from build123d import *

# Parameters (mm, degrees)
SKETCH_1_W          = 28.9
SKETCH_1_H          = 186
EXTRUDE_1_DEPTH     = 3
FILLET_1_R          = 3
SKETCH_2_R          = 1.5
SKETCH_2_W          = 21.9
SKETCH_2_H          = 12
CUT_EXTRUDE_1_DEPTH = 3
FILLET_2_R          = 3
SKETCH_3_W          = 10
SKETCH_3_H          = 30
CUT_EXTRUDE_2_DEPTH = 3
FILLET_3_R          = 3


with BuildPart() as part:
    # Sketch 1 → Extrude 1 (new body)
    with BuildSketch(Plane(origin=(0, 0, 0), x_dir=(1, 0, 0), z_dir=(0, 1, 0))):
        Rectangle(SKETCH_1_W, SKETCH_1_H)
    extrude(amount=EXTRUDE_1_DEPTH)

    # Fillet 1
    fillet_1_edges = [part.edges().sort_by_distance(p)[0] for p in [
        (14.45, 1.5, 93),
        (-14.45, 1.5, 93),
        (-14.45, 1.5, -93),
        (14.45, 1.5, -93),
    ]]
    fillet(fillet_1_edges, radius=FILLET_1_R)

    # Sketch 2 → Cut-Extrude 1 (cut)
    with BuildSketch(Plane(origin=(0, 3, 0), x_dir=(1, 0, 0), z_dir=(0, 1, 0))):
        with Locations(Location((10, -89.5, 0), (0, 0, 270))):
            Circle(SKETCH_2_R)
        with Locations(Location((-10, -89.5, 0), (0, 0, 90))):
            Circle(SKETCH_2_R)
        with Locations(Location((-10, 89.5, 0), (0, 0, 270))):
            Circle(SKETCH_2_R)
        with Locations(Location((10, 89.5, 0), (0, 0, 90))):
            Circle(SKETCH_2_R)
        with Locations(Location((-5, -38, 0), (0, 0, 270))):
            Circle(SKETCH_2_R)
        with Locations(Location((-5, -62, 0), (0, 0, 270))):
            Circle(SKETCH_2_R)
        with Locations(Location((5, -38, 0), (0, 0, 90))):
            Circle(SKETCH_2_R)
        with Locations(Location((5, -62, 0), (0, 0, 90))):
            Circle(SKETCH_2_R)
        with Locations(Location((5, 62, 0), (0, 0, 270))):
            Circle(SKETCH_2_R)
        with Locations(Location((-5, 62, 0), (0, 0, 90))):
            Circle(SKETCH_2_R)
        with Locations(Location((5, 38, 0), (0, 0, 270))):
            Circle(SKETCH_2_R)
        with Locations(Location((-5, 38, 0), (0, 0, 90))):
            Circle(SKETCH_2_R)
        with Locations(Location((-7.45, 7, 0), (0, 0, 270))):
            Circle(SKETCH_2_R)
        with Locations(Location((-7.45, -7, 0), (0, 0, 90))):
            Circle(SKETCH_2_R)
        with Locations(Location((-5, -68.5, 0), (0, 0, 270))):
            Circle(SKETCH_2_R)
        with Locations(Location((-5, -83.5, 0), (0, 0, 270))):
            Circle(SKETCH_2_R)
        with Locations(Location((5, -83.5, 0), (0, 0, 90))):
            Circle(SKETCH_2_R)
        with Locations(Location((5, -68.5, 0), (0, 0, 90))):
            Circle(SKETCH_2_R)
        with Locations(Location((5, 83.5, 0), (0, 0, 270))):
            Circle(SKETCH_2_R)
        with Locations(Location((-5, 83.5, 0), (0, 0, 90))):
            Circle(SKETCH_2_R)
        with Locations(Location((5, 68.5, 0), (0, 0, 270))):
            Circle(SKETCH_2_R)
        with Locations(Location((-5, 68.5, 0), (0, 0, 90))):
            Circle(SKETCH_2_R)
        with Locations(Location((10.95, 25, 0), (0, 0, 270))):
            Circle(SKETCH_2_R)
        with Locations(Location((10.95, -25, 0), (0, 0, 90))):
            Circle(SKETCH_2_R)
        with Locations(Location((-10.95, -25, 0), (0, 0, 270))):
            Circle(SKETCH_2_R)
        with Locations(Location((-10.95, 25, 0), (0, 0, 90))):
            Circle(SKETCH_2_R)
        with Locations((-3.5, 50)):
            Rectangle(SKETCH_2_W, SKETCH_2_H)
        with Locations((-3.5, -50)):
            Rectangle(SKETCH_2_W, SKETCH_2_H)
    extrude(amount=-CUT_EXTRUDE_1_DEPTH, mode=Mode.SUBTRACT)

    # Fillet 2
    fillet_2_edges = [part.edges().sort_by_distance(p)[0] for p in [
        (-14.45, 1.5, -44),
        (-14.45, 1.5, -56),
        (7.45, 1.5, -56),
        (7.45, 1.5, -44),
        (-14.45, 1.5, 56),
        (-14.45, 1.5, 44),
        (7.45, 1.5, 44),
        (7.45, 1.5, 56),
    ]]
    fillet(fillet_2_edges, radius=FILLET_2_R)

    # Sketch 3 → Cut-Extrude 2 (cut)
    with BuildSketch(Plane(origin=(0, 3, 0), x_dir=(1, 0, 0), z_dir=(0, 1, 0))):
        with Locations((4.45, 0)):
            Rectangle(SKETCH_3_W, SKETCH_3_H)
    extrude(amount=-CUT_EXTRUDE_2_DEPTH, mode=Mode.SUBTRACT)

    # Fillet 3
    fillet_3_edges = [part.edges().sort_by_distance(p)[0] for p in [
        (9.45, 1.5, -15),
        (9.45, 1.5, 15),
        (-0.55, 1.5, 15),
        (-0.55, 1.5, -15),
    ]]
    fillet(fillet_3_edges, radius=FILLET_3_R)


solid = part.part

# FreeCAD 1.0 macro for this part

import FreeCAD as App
import Part
import Sketcher
from FreeCAD import Vector


def edges_at(feature, points):
    """Names of the edges that pass closest to the given points."""
    edges = feature.Shape.Edges
    near = lambda p: min(range(len(edges)), key=lambda i: edges[i].distToShape(Part.Vertex(*p))[0])
    return sorted({f"Edge{near(p) + 1}" for p in points})

doc = App.newDocument("Part")
body = doc.addObject("PartDesign::Body", "Body")

# Sketch on XZ plane
sketch1 = body.newObject("Sketcher::SketchObject", "Sketch")
sketch1.AttachmentSupport = (doc.getObject("XZ_Plane"), [""])
sketch1.MapMode = "FlatFace"
sketch1.addGeometry([
    Part.LineSegment(Vector(-14, -93, 0), Vector(-14, 93, 0)),
    Part.LineSegment(Vector(-14, 93, 0), Vector(14, 93, 0)),
    Part.LineSegment(Vector(14, 93, 0), Vector(14, -93, 0)),
    Part.LineSegment(Vector(14, -93, 0), Vector(-14, -93, 0)),
], False)
sketch1.addConstraint([
    Sketcher.Constraint("Coincident", 0, 2, 1, 1),
    Sketcher.Constraint("Coincident", 1, 2, 2, 1),
    Sketcher.Constraint("Coincident", 2, 2, 3, 1),
    Sketcher.Constraint("Coincident", 3, 2, 0, 1),
    Sketcher.Constraint("Vertical", 0),
    Sketcher.Constraint("Horizontal", 1),
    Sketcher.Constraint("Vertical", 2),
    Sketcher.Constraint("Horizontal", 3),
    Sketcher.Constraint("Symmetric", 0, 2, 2, 2, -1, 1),
    Sketcher.Constraint("DistanceY", 0, 1, 0, 2, 186.0),
    Sketcher.Constraint("DistanceX", 1, 1, 1, 2, 28.9),
])
pad1 = body.newObject("PartDesign::Pad", "Pad")
pad1.Profile = sketch1
pad1.Length = 3
pad1.Reversed = True
doc.recompute()

fillet = body.newObject("PartDesign::Fillet", "Fillet")
fillet.Base = (pad1, edges_at(pad1, [
    (14.45, 1.5, 93),
    (-14.45, 1.5, 93),
    (-14.45, 1.5, -93),
    (14.45, 1.5, -93),
]))
fillet.Radius = 3

# Sketch on XZ plane
sketch2 = body.newObject("Sketcher::SketchObject", "Sketch001")
sketch2.AttachmentSupport = (doc.getObject("XZ_Plane"), [""])
sketch2.MapMode = "FlatFace"
sketch2.AttachmentOffset = App.Placement(Vector(0, 0, -3), App.Rotation())
sketch2.addGeometry([
    Part.Circle(Vector(10, 89.5, 0), Vector(0, 0, 1), 1.5),  # 0
    Part.Circle(Vector(-10, 89.5, 0), Vector(0, 0, 1), 1.5),  # 1
    Part.Circle(Vector(-10, -89.5, 0), Vector(0, 0, 1), 1.5),  # 2
    Part.Circle(Vector(10, -89.5, 0), Vector(0, 0, 1), 1.5),  # 3
    Part.Circle(Vector(-5, 38, 0), Vector(0, 0, 1), 1.5),  # 4
    Part.Circle(Vector(-5, 62, 0), Vector(0, 0, 1), 1.5),  # 5
    Part.Circle(Vector(5, 38, 0), Vector(0, 0, 1), 1.5),  # 6
    Part.Circle(Vector(5, 62, 0), Vector(0, 0, 1), 1.5),  # 7
    Part.Circle(Vector(5, -62, 0), Vector(0, 0, 1), 1.5),  # 8
    Part.Circle(Vector(-5, -62, 0), Vector(0, 0, 1), 1.5),  # 9
    Part.Circle(Vector(5, -38, 0), Vector(0, 0, 1), 1.5),  # 10
    Part.Circle(Vector(-5, -38, 0), Vector(0, 0, 1), 1.5),  # 11
    Part.Circle(Vector(-7.5, -7, 0), Vector(0, 0, 1), 1.5),  # 12
    Part.Circle(Vector(-7.5, 7, 0), Vector(0, 0, 1), 1.5),  # 13
    Part.Circle(Vector(-5, 68.5, 0), Vector(0, 0, 1), 1.5),  # 14
    Part.Circle(Vector(-5, 83.5, 0), Vector(0, 0, 1), 1.5),  # 15
    Part.Circle(Vector(5, 83.5, 0), Vector(0, 0, 1), 1.5),  # 16
    Part.Circle(Vector(5, 68.5, 0), Vector(0, 0, 1), 1.5),  # 17
    Part.Circle(Vector(5, -83.5, 0), Vector(0, 0, 1), 1.5),  # 18
    Part.Circle(Vector(-5, -83.5, 0), Vector(0, 0, 1), 1.5),  # 19
    Part.Circle(Vector(5, -68.5, 0), Vector(0, 0, 1), 1.5),  # 20
    Part.Circle(Vector(-5, -68.5, 0), Vector(0, 0, 1), 1.5),  # 21
    Part.Circle(Vector(10.9, -25, 0), Vector(0, 0, 1), 1.5),  # 22
    Part.Circle(Vector(10.9, 25, 0), Vector(0, 0, 1), 1.5),  # 23
    Part.Circle(Vector(-10.9, 25, 0), Vector(0, 0, 1), 1.5),  # 24
    Part.Circle(Vector(-10.9, -25, 0), Vector(0, 0, 1), 1.5),  # 25
    Part.LineSegment(Vector(-14.4, -56, 0), Vector(-14.4, -44, 0)),  # 26
    Part.LineSegment(Vector(-14.4, -44, 0), Vector(7.5, -44, 0)),  # 27
    Part.LineSegment(Vector(7.5, -44, 0), Vector(7.5, -56, 0)),  # 28
    Part.LineSegment(Vector(7.5, -56, 0), Vector(-14.4, -56, 0)),  # 29
    Part.LineSegment(Vector(-14.4, 44, 0), Vector(-14.4, 56, 0)),  # 30
    Part.LineSegment(Vector(-14.4, 56, 0), Vector(7.5, 56, 0)),  # 31
    Part.LineSegment(Vector(7.5, 56, 0), Vector(7.5, 44, 0)),  # 32
    Part.LineSegment(Vector(7.5, 44, 0), Vector(-14.4, 44, 0)),  # 33
], False)
sketch2.addConstraint([
    Sketcher.Constraint("Coincident", 26, 2, 27, 1),
    Sketcher.Constraint("Coincident", 27, 2, 28, 1),
    Sketcher.Constraint("Coincident", 28, 2, 29, 1),
    Sketcher.Constraint("Coincident", 29, 2, 26, 1),
    Sketcher.Constraint("Coincident", 30, 2, 31, 1),
    Sketcher.Constraint("Coincident", 31, 2, 32, 1),
    Sketcher.Constraint("Coincident", 32, 2, 33, 1),
    Sketcher.Constraint("Coincident", 33, 2, 30, 1),
    Sketcher.Constraint("Vertical", 26),
    Sketcher.Constraint("Horizontal", 27),
    Sketcher.Constraint("Vertical", 28),
    Sketcher.Constraint("Horizontal", 29),
    Sketcher.Constraint("Vertical", 30),
    Sketcher.Constraint("Horizontal", 31),
    Sketcher.Constraint("Vertical", 32),
    Sketcher.Constraint("Horizontal", 33),
    Sketcher.Constraint("Equal", 0, 1),
    Sketcher.Constraint("Equal", 1, 2),
    Sketcher.Constraint("Equal", 2, 3),
    Sketcher.Constraint("Equal", 3, 4),
    Sketcher.Constraint("Equal", 4, 5),
    Sketcher.Constraint("Equal", 5, 6),
    Sketcher.Constraint("Equal", 6, 7),
    Sketcher.Constraint("Equal", 7, 8),
    Sketcher.Constraint("Equal", 8, 9),
    Sketcher.Constraint("Equal", 9, 10),
    Sketcher.Constraint("Equal", 10, 11),
    Sketcher.Constraint("Equal", 11, 12),
    Sketcher.Constraint("Equal", 12, 13),
    Sketcher.Constraint("Equal", 13, 14),
    Sketcher.Constraint("Equal", 14, 15),
    Sketcher.Constraint("Equal", 15, 16),
    Sketcher.Constraint("Equal", 16, 17),
    Sketcher.Constraint("Equal", 17, 18),
    Sketcher.Constraint("Equal", 18, 19),
    Sketcher.Constraint("Equal", 19, 20),
    Sketcher.Constraint("Equal", 20, 21),
    Sketcher.Constraint("Equal", 21, 22),
    Sketcher.Constraint("Equal", 22, 23),
    Sketcher.Constraint("Equal", 23, 24),
    Sketcher.Constraint("Equal", 24, 25),
    Sketcher.Constraint("Symmetric", 0, 3, 2, 3, -1, 1),
    Sketcher.Constraint("Symmetric", 1, 3, 3, 3, -1, 1),
    Sketcher.Constraint("Symmetric", 5, 3, 8, 3, -1, 1),
    Sketcher.Constraint("Symmetric", 7, 3, 9, 3, -1, 1),
    Sketcher.Constraint("Symmetric", 4, 3, 10, 3, -1, 1),
    Sketcher.Constraint("Symmetric", 6, 3, 11, 3, -1, 1),
    Sketcher.Constraint("Symmetric", 15, 3, 18, 3, -1, 1),
    Sketcher.Constraint("Symmetric", 16, 3, 19, 3, -1, 1),
    Sketcher.Constraint("Symmetric", 14, 3, 20, 3, -1, 1),
    Sketcher.Constraint("Symmetric", 17, 3, 21, 3, -1, 1),
    Sketcher.Constraint("Symmetric", 22, 3, 24, 3, -1, 1),
    Sketcher.Constraint("Symmetric", 23, 3, 25, 3, -1, 1),
    Sketcher.Constraint("Symmetric", 0, 3, 1, 3, -2),
    Sketcher.Constraint("Symmetric", 4, 3, 6, 3, -2),
    Sketcher.Constraint("Symmetric", 5, 3, 7, 3, -2),
    Sketcher.Constraint("Symmetric", 15, 3, 16, 3, -2),
    Sketcher.Constraint("Symmetric", 14, 3, 17, 3, -2),
    Sketcher.Constraint("Symmetric", 23, 3, 24, 3, -2),
    Sketcher.Constraint("Symmetric", 12, 3, 13, 3, -1),
    Sketcher.Constraint("Symmetric", 29, 2, 30, 2, -1),
    Sketcher.Constraint("Symmetric", 27, 2, 32, 2, -1),
    Sketcher.Constraint("Vertical", 4, 3, 5, 3),
    Sketcher.Constraint("Vertical", 11, 3, 14, 3),
    Sketcher.Constraint("Vertical", 14, 3, 15, 3),
    Sketcher.Constraint("Diameter", 0, 3.0),
    Sketcher.Constraint("DistanceY", 26, 1, 26, 2, 12.0),
    Sketcher.Constraint("DistanceX", 27, 1, 27, 2, 21.9),
    Sketcher.Constraint("DistanceX", -1, 1, 0, 3, 10.0),
    Sketcher.Constraint("DistanceX", 4, 3, -1, 1, 5.0),
    Sketcher.Constraint("DistanceY", -1, 1, 4, 3, 38.0),
    Sketcher.Constraint("DistanceY", -1, 1, 5, 3, 62.0),
    Sketcher.Constraint("DistanceY", 12, 3, -1, 1, 7.0),
    Sketcher.Constraint("DistanceY", 22, 3, -1, 1, 25.0),
    Sketcher.Constraint("DistanceY", 26, 2, -1, 1, 44.0),
    Sketcher.Constraint("DistanceY", 2, 3, 1, 3, 179.0),
    Sketcher.Constraint("DistanceY", 14, 3, 1, 3, 21.0),
    Sketcher.Constraint("DistanceY", 15, 3, 1, 3, 6.0),
    Sketcher.Constraint("DistanceX", 12, 3, 22, 3, 18.4),
    Sketcher.Constraint("DistanceX", 24, 3, 13, 3, 3.5),
    Sketcher.Constraint("DistanceX", 26, 2, 25, 3, 3.5),
])
pocket1 = body.newObject("PartDesign::Pocket", "Pocket")
pocket1.Profile = sketch2
pocket1.Length = 3
pocket1.Reversed = True
doc.recompute()

fillet2 = body.newObject("PartDesign::Fillet", "Fillet001")
fillet2.Base = (pocket1, edges_at(pocket1, [
    (-14.45, 1.5, -44),
    (-14.45, 1.5, -56),
    (7.45, 1.5, -56),
    (7.45, 1.5, -44),
    (-14.45, 1.5, 56),
    (-14.45, 1.5, 44),
    (7.45, 1.5, 44),
    (7.45, 1.5, 56),
]))
fillet2.Radius = 3

# Sketch on XZ plane
sketch3 = body.newObject("Sketcher::SketchObject", "Sketch002")
sketch3.AttachmentSupport = (doc.getObject("XZ_Plane"), [""])
sketch3.MapMode = "FlatFace"
sketch3.AttachmentOffset = App.Placement(Vector(0, 0, -3), App.Rotation())
sketch3.addGeometry([
    Part.LineSegment(Vector(-1, -15, 0), Vector(-1, 15, 0)),
    Part.LineSegment(Vector(-1, 15, 0), Vector(9, 15, 0)),
    Part.LineSegment(Vector(9, 15, 0), Vector(9, -15, 0)),
    Part.LineSegment(Vector(9, -15, 0), Vector(-1, -15, 0)),
], False)
sketch3.addConstraint([
    Sketcher.Constraint("Coincident", 0, 2, 1, 1),
    Sketcher.Constraint("Coincident", 1, 2, 2, 1),
    Sketcher.Constraint("Coincident", 2, 2, 3, 1),
    Sketcher.Constraint("Coincident", 3, 2, 0, 1),
    Sketcher.Constraint("Vertical", 0),
    Sketcher.Constraint("Horizontal", 1),
    Sketcher.Constraint("Vertical", 2),
    Sketcher.Constraint("Horizontal", 3),
    Sketcher.Constraint("DistanceX", 1, 1, 1, 2, 10.0),
    Sketcher.Constraint("DistanceY", 0, 1, 0, 2, 30.0),
    Sketcher.Constraint("DistanceY", -1, 1, 0, 2, 15.0),
    Sketcher.Constraint("DistanceX", 0, 2, -1, 1, 0.55),
])
pocket2 = body.newObject("PartDesign::Pocket", "Pocket001")
pocket2.Profile = sketch3
pocket2.Length = 3
pocket2.Reversed = True
doc.recompute()

fillet3 = body.newObject("PartDesign::Fillet", "Fillet002")
fillet3.Base = (pocket2, edges_at(pocket2, [
    (9.45, 1.5, -15),
    (9.45, 1.5, 15),
    (-0.55, 1.5, 15),
    (-0.55, 1.5, -15),
]))
fillet3.Radius = 3

doc.recompute()
